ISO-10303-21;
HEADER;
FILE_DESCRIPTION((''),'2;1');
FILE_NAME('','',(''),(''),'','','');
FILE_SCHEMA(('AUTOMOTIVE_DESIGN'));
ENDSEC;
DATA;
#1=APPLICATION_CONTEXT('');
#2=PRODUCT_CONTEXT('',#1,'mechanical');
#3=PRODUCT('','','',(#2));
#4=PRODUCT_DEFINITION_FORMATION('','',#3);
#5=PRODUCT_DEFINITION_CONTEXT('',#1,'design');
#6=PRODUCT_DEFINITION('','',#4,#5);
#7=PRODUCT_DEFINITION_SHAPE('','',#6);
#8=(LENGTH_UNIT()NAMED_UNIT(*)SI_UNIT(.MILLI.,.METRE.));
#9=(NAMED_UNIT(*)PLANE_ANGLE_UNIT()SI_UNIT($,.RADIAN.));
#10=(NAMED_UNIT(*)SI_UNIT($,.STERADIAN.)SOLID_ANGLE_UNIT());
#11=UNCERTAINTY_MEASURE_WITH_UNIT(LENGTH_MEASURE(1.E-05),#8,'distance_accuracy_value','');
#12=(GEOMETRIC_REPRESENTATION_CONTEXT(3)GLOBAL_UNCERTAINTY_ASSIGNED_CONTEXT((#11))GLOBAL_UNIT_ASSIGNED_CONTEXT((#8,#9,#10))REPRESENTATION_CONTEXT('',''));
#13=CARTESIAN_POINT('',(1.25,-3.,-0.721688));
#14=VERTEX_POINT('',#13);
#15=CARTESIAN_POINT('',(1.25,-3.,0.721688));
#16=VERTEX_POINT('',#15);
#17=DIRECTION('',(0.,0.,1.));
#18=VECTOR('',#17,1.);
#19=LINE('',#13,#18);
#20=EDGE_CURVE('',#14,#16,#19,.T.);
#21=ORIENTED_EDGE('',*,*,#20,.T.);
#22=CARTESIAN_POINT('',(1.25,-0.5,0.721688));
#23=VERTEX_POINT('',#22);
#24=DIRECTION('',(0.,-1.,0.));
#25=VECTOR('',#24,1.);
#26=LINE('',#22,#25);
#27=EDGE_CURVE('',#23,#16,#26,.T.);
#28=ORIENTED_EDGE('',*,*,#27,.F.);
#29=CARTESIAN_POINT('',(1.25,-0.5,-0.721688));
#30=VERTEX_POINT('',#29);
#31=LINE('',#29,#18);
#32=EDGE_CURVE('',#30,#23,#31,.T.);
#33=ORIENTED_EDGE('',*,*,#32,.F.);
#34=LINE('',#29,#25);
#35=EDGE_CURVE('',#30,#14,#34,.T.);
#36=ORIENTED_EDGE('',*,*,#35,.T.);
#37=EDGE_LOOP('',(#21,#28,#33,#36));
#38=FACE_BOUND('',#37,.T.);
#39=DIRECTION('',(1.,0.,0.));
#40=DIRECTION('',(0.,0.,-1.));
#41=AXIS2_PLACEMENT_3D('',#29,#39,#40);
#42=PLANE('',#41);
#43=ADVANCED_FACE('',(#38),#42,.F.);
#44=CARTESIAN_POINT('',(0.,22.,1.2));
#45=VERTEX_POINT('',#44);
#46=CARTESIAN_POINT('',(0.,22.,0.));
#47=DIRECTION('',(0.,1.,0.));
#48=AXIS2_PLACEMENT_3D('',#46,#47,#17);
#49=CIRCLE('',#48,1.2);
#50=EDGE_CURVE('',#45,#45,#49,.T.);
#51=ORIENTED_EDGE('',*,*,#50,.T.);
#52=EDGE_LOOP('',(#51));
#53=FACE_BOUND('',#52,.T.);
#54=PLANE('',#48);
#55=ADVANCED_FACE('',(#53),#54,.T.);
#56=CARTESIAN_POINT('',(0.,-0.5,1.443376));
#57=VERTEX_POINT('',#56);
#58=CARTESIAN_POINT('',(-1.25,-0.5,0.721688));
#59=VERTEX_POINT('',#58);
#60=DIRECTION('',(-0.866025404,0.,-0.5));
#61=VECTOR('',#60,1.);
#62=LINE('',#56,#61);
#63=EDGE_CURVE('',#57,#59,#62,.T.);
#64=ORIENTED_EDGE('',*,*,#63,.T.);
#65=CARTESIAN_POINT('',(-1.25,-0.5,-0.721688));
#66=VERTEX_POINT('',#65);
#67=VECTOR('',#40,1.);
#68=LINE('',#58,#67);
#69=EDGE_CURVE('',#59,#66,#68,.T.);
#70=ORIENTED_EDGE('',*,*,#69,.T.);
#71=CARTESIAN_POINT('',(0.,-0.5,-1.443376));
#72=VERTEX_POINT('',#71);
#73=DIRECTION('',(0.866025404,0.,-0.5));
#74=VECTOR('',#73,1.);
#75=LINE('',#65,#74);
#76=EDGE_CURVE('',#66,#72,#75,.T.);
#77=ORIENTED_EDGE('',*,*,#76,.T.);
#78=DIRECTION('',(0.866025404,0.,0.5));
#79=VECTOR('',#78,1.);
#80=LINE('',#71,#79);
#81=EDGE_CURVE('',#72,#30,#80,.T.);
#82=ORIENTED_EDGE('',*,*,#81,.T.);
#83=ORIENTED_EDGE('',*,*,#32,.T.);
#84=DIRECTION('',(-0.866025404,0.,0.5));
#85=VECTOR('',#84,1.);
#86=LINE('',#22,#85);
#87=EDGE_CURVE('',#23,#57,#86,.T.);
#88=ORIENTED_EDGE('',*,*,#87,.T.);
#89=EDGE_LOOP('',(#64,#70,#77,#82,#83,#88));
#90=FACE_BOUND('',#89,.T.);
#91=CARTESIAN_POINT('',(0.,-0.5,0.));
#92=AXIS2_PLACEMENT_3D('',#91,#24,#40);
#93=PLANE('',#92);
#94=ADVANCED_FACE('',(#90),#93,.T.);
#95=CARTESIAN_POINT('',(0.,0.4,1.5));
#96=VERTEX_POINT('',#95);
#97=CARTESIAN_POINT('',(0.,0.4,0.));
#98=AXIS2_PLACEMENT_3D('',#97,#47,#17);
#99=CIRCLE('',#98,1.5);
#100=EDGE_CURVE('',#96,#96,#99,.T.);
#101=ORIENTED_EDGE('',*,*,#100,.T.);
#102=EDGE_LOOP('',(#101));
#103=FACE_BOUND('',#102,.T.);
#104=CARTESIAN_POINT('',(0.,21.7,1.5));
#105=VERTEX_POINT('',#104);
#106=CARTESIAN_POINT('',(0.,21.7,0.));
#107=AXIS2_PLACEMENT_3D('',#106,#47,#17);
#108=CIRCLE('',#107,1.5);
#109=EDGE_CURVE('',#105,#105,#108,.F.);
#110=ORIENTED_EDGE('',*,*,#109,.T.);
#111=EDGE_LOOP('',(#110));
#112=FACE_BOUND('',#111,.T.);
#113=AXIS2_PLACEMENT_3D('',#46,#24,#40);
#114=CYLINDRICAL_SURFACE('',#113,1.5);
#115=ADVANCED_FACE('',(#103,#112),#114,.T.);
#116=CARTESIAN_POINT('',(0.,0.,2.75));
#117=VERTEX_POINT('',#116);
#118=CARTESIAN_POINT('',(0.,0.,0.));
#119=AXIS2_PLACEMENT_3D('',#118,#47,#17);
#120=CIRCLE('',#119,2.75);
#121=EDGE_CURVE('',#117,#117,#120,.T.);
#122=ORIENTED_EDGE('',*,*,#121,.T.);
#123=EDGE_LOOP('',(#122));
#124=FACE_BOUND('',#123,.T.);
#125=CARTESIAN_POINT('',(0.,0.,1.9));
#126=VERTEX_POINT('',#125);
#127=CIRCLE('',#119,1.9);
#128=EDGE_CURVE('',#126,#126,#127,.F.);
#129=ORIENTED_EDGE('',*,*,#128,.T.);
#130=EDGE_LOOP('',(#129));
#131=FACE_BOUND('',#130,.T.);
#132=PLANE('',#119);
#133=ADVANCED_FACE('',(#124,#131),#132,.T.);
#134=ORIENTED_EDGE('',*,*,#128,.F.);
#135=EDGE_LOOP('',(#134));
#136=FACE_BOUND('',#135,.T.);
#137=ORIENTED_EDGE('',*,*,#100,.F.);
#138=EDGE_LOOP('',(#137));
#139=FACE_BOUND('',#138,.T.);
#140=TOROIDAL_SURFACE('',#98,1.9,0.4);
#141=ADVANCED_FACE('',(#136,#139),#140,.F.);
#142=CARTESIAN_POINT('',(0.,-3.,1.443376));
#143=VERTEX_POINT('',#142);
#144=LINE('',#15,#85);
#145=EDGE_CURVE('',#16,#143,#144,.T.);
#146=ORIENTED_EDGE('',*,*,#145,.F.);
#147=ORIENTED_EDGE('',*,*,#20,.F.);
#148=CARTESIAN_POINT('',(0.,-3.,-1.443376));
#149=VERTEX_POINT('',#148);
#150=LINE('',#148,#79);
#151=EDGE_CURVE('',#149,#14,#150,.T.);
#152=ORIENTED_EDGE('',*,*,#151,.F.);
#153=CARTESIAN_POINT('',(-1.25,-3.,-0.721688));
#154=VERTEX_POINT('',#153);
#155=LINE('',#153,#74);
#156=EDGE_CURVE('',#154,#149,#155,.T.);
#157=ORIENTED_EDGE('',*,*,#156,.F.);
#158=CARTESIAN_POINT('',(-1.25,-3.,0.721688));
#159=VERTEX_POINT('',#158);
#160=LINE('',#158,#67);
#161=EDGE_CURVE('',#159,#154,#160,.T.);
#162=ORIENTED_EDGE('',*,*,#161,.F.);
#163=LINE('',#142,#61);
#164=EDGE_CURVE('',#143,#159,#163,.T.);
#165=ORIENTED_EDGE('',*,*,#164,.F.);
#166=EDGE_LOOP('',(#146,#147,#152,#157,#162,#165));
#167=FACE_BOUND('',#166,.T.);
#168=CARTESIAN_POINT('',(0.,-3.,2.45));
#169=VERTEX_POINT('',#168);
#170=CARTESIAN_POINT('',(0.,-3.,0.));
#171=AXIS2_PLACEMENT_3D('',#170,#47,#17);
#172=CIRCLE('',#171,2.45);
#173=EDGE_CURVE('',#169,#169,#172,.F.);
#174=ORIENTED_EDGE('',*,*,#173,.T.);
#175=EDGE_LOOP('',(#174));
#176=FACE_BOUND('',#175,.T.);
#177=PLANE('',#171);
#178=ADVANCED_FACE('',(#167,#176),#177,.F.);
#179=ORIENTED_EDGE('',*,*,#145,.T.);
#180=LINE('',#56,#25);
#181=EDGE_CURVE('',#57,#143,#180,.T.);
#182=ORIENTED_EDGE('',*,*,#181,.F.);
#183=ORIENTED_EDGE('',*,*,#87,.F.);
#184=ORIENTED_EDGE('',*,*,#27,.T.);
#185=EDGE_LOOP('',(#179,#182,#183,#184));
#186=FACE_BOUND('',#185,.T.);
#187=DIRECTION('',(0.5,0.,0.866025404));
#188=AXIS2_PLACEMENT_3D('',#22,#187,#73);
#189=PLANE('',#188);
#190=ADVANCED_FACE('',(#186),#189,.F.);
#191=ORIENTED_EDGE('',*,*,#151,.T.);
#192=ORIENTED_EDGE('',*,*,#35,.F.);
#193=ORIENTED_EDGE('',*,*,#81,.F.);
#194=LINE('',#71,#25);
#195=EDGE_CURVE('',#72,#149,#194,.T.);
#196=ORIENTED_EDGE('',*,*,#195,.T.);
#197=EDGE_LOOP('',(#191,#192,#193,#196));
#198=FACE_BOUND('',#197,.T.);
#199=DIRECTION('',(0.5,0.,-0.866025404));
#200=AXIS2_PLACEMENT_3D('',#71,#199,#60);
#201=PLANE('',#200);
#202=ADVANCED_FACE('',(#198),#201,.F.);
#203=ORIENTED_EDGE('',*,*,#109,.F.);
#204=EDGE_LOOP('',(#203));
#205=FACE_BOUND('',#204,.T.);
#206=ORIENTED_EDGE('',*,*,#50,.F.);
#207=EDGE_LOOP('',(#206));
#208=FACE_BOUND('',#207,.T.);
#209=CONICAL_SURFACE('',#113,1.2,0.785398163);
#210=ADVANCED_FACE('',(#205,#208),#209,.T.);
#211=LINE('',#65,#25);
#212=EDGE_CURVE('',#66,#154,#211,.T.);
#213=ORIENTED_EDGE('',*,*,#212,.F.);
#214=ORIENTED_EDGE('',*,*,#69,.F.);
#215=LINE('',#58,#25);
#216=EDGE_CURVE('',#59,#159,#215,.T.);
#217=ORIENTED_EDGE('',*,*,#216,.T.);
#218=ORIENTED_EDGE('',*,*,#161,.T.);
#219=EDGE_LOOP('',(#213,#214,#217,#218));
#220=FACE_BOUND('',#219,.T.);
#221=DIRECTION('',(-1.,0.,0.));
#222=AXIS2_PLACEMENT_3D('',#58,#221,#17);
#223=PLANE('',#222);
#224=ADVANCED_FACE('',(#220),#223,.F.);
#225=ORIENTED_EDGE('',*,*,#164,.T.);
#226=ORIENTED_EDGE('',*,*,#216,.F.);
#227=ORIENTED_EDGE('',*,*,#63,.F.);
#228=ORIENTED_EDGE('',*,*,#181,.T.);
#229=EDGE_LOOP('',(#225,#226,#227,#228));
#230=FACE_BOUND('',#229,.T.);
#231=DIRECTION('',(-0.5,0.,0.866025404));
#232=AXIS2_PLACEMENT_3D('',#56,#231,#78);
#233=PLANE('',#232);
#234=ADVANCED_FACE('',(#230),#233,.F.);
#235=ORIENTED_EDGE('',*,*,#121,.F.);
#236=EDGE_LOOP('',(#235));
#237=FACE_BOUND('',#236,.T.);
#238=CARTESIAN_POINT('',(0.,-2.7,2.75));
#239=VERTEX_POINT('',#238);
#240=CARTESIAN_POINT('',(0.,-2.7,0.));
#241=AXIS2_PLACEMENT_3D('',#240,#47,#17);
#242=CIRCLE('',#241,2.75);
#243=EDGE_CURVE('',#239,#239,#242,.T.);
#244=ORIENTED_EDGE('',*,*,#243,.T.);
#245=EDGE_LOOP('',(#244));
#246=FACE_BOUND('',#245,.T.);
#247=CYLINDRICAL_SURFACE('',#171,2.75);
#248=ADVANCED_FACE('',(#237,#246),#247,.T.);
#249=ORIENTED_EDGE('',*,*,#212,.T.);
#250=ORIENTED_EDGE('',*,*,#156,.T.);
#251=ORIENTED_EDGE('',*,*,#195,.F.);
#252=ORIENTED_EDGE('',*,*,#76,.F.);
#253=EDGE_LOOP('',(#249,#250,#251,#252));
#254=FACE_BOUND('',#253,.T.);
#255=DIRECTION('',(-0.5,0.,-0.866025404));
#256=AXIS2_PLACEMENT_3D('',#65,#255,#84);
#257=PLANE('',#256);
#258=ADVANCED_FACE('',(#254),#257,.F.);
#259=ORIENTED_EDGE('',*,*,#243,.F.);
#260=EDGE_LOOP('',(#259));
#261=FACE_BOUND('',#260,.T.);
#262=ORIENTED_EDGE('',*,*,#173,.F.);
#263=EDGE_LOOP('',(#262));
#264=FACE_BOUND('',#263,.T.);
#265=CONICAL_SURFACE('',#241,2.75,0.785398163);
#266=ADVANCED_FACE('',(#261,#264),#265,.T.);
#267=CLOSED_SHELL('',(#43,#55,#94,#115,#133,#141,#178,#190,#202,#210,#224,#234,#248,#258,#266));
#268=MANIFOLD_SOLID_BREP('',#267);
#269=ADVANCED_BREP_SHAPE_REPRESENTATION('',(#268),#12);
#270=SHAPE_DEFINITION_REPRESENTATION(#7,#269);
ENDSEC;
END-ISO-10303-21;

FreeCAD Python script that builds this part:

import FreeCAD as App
import Part
import Sketcher

V = App.Vector
Q = App.Units.Quantity


def edges_at(feature, points):
    """Names of the edges that pass closest to the given points."""
    edges = feature.Shape.Edges
    near = lambda p: min(range(len(edges)), key=lambda i: edges[i].distToShape(Part.Vertex(*p))[0])
    return sorted({f"Edge{near(p) + 1}" for p in points})

doc = App.newDocument("Part")
body = doc.addObject("PartDesign::Body", "Body")

# Sketch on XZ plane
sketch1 = doc.addObject("Sketcher::SketchObject", "Sketch")
body.addObject(sketch1)
sketch1.AttachmentSupport = (doc.XZ_Plane, [""])
sketch1.MapMode = "FlatFace"
sketch1.addGeometry(Part.Circle(V(0, 0, 0), V(0, 0, 1), 1.5), False)
sketch1.addConstraint([
    Sketcher.Constraint("Coincident", 0, 3, -1, 1),
    Sketcher.Constraint("Diameter", 0, Q("3 mm")),
])
pad1 = doc.addObject("PartDesign::Pad", "Pad")
body.addObject(pad1)
pad1.Profile = sketch1
pad1.Length = 22
pad1.Reversed = True

# Sketch on XZ plane
sketch2 = doc.addObject("Sketcher::SketchObject", "Sketch001")
body.addObject(sketch2)
sketch2.AttachmentSupport = (doc.XZ_Plane, [""])
sketch2.MapMode = "FlatFace"
sketch2.addGeometry(Part.Circle(V(0, 0, 0), V(0, 0, 1), 2.75), False)
sketch2.addConstraint([
    Sketcher.Constraint("Coincident", 0, 3, -1, 1),
    Sketcher.Constraint("Diameter", 0, Q("5.5 mm")),
])
pad2 = doc.addObject("PartDesign::Pad", "Pad001")
body.addObject(pad2)
pad2.Profile = sketch2
pad2.Length = 3
doc.recompute()

fillet = doc.addObject("PartDesign::Fillet", "Fillet")
body.addObject(fillet)
fillet.Base = (pad2, edges_at(pad2, [(0, 0, -1.5)]))
fillet.Radius = 0.4
doc.recompute()

chamfer = doc.addObject("PartDesign::Chamfer", "Chamfer")
body.addObject(chamfer)
chamfer.Base = (fillet, edges_at(fillet, [(0, 22, -1.5), (0, -3, -2.75)]))
chamfer.Size = 0.3

# Sketch on XZ plane
sketch3 = doc.addObject("Sketcher::SketchObject", "Sketch002")
body.addObject(sketch3)
sketch3.AttachmentSupport = (doc.XZ_Plane, [""])
sketch3.MapMode = "FlatFace"
sketch3.AttachmentOffset = App.Placement(V(0, 0, 3), App.Rotation())
sketch3.addGeometry([
    Part.LineSegment(V(0, 1.443376, 0), V(-1.25, 0.721688, 0)),  # 0
    Part.LineSegment(V(-1.25, 0.721688, 0), V(-1.25, -0.721688, 0)),  # 1
    Part.LineSegment(V(-1.25, -0.721688, 0), V(0, -1.443376, 0)),  # 2
    Part.LineSegment(V(0, -1.443376, 0), V(1.25, -0.721688, 0)),  # 3
    Part.LineSegment(V(1.25, -0.721688, 0), V(1.25, 0.721688, 0)),  # 4
    Part.LineSegment(V(1.25, 0.721688, 0), V(0, 1.443376, 0)),  # 5
], False)
sketch3.addConstraint([
    Sketcher.Constraint("Coincident", 0, 2, 1, 1),
    Sketcher.Constraint("Coincident", 1, 2, 2, 1),
    Sketcher.Constraint("Coincident", 2, 2, 3, 1),
    Sketcher.Constraint("Coincident", 3, 2, 4, 1),
    Sketcher.Constraint("Coincident", 4, 2, 5, 1),
    Sketcher.Constraint("Coincident", 5, 2, 0, 1),
    Sketcher.Constraint("Vertical", 1),
    Sketcher.Constraint("Vertical", 4),
    Sketcher.Constraint("Symmetric", 0, 2, 3, 2, -1, 1),
    Sketcher.Constraint("Symmetric", 2, 2, 5, 2, -1, 1),
    Sketcher.Constraint("PointOnObject", 2, 2, -2),
    Sketcher.Constraint("Parallel", 2, 5),
    Sketcher.Constraint("Horizontal", 1, 2, 3, 2),
    Sketcher.Constraint("Angle", 0, Q("-150 deg")),
    Sketcher.Constraint("DistanceX", 1, 2, 3, 2, Q("2.5 mm")),
    Sketcher.Constraint("DistanceY", 1, 2, 1, 1, Q("1.443376 mm")),
])
pocket1 = doc.addObject("PartDesign::Pocket", "Pocket")
body.addObject(pocket1)
pocket1.Profile = sketch3
pocket1.Length = 2.5

doc.recompute()
